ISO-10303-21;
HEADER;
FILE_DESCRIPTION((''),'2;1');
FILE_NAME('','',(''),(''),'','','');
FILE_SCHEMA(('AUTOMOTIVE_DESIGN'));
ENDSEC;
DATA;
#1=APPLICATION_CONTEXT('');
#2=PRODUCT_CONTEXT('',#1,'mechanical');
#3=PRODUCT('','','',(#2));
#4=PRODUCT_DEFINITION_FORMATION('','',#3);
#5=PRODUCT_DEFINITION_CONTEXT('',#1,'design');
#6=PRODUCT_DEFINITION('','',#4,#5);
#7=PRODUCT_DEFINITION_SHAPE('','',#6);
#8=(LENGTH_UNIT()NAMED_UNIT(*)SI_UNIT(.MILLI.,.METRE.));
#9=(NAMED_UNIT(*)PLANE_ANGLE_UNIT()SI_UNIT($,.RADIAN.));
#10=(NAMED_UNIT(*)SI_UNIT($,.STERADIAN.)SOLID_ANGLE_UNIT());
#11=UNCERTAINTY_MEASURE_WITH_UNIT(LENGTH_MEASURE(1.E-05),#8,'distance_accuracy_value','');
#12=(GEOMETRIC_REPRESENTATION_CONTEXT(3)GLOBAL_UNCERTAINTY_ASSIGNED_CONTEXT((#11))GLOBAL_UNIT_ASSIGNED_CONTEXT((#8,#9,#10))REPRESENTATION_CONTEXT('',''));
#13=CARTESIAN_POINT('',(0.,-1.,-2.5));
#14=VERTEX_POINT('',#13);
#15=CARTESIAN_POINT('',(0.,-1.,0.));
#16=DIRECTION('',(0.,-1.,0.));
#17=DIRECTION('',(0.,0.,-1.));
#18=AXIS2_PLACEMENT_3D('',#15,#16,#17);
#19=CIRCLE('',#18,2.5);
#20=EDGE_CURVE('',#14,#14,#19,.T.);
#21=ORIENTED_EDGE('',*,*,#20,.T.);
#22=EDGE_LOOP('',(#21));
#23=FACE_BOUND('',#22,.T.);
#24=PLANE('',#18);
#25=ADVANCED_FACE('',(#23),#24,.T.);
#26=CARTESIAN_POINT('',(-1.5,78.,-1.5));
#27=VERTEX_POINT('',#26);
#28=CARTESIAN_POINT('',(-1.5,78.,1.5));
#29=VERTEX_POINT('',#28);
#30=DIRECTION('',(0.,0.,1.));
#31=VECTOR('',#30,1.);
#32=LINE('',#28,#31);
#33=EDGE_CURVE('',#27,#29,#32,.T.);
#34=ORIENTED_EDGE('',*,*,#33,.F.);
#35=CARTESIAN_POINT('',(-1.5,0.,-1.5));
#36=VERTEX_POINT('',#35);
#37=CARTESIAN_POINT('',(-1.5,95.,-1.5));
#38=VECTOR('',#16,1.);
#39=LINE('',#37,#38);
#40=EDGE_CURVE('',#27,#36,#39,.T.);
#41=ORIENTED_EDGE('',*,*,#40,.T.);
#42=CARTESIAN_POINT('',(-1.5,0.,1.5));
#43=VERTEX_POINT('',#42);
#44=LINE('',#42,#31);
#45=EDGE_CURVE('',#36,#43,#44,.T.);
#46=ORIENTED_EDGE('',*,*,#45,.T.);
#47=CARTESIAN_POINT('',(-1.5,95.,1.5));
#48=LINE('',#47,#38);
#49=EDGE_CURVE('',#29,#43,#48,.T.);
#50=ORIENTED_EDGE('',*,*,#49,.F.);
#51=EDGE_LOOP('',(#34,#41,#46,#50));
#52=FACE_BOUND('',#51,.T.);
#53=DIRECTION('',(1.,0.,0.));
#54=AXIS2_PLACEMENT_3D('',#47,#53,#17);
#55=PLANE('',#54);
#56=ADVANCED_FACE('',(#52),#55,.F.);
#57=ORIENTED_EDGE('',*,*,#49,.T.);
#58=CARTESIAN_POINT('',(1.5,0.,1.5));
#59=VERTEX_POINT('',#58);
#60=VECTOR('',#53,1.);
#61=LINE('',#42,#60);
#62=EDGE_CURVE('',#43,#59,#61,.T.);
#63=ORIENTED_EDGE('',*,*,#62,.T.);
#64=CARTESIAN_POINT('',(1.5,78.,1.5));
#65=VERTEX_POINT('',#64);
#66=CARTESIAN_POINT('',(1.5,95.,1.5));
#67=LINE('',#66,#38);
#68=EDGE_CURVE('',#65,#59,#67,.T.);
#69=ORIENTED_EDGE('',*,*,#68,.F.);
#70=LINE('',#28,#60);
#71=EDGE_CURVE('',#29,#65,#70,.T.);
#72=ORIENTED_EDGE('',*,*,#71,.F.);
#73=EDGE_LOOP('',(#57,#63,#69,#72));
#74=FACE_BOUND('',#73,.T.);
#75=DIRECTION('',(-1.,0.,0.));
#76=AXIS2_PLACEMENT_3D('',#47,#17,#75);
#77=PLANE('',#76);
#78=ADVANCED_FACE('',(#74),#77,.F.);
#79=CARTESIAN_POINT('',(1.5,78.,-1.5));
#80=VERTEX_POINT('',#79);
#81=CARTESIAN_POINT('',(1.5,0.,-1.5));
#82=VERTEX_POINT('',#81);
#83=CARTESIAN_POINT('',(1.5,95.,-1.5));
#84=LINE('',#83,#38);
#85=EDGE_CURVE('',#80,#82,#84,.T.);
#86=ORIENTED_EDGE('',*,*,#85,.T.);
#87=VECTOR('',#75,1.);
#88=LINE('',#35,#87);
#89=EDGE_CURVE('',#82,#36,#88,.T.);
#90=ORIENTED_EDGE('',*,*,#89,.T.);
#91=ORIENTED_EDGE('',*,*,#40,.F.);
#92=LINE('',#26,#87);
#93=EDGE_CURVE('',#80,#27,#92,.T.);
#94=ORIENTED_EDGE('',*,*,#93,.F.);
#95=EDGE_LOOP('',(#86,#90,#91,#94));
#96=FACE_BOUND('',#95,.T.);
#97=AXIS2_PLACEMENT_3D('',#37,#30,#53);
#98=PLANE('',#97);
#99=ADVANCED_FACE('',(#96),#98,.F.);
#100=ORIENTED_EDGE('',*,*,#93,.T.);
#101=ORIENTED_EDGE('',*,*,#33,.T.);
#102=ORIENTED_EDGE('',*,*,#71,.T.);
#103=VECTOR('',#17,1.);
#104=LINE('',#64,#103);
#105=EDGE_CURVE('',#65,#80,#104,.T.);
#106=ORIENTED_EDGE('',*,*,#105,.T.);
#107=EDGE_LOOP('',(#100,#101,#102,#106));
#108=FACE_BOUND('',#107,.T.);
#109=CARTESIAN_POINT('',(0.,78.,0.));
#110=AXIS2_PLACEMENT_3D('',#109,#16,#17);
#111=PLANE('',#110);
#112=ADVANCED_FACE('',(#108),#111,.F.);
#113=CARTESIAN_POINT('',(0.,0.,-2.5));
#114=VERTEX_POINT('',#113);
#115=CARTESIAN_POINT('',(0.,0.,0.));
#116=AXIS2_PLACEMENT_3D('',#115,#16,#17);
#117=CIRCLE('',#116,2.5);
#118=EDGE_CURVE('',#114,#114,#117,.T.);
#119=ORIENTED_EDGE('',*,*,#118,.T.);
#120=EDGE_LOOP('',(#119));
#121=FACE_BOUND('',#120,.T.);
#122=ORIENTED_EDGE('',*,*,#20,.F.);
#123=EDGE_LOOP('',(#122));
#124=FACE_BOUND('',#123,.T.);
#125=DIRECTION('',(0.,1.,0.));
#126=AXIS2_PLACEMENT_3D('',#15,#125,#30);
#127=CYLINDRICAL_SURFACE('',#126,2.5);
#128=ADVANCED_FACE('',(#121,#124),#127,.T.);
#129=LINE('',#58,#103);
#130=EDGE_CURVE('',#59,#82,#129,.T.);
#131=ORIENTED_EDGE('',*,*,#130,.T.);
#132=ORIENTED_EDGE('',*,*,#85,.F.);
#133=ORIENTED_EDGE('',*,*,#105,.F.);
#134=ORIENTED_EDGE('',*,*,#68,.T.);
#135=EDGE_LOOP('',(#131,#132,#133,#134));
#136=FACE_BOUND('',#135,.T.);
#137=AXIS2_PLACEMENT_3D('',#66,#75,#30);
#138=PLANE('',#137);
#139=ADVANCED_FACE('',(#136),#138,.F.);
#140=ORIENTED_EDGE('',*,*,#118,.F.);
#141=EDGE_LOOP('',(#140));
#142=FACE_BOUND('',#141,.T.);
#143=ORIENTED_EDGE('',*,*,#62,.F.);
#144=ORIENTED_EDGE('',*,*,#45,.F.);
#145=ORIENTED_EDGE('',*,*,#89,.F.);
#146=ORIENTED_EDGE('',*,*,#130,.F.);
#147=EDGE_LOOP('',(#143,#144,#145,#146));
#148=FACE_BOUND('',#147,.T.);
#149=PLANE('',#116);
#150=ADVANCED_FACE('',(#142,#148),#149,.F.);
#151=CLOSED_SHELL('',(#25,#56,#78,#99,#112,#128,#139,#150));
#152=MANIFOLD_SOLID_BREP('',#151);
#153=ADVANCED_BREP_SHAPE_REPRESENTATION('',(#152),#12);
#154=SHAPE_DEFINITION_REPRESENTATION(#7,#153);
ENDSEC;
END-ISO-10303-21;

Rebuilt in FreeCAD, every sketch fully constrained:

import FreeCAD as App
import Part
import Sketcher

V = App.Vector
Q = App.Units.Quantity


def add_polygon(sketch, points):
    """Adds a closed chain of lines whose ends are joined by coincident constraints."""
    first, n = sketch.GeometryCount, len(points)
    for a, b in zip(points, points[1:] + points[:1]):
        sketch.addGeometry(Part.LineSegment(App.Vector(*a, 0), App.Vector(*b, 0)), False)
    for i in range(n):
        sketch.addConstraint(Sketcher.Constraint("Coincident", first + i, 2, first + (i + 1) % n, 1))

doc = App.newDocument("Part")
body = doc.addObject("PartDesign::Body", "Body")

sketch1 = body.newObject("Sketcher::SketchObject", "Sketch")
sketch1.AttachmentSupport = (doc.getObject("XZ_Plane"), [""])
sketch1.MapMode = "FlatFace"
add_polygon(sketch1, [(-1.5, -1.5), (-1.5, 1.5), (1.5, 1.5), (1.5, -1.5)])
sketch1.addConstraint([
    Sketcher.Constraint("Vertical", 0),
    Sketcher.Constraint("Horizontal", 1),
    Sketcher.Constraint("Vertical", 2),
    Sketcher.Constraint("Horizontal", 3),
    Sketcher.Constraint("Symmetric", 0, 2, 2, 2, -1, 1),
    Sketcher.Constraint("Equal", 3, 0),
    Sketcher.Constraint("DistanceX", 1, 1, 1, 2, Q("3 mm")),
])
pad1 = body.newObject("PartDesign::Pad", "Pad")
pad1.Profile = sketch1
pad1.Length = 95
pad1.Reversed = True

sketch2 = body.newObject("Sketcher::SketchObject", "Sketch001")
sketch2.AttachmentSupport = (doc.getObject("XZ_Plane"), [""])
sketch2.MapMode = "FlatFace"
sketch2.addGeometry(Part.Circle(V(0, 0, 0), V(0, 0, 1), 2.5), False)
sketch2.addConstraint([
    Sketcher.Constraint("Coincident", 0, 3, -1, 1),
    Sketcher.Constraint("Diameter", 0, Q("5 mm")),
])
pad2 = body.newObject("PartDesign::Pad", "Pad001")
pad2.Profile = sketch2
pad2.Length = 1

sketch3 = body.newObject("Sketcher::SketchObject", "Sketch002")
sketch3.AttachmentSupport = (doc.getObject("XZ_Plane"), [""])
sketch3.MapMode = "FlatFace"
sketch3.AttachmentOffset = App.Placement(V(0, 0, -95), App.Rotation())
add_polygon(sketch3, [(-1.5, -1.5), (-1.5, 1.5), (1.5, 1.5), (1.5, -1.5)])
sketch3.addConstraint([
    Sketcher.Constraint("Vertical", 0),
    Sketcher.Constraint("Horizontal", 1),
    Sketcher.Constraint("Vertical", 2),
    Sketcher.Constraint("Horizontal", 3),
    Sketcher.Constraint("Symmetric", 0, 2, 2, 2, -1, 1),
    Sketcher.Constraint("Equal", 3, 0),
    Sketcher.Constraint("DistanceX", 1, 1, 1, 2, Q("3 mm")),
])
pocket1 = body.newObject("PartDesign::Pocket", "Pocket")
pocket1.Profile = sketch3
pocket1.Length = 17
pocket1.Reversed = True

doc.recompute()
